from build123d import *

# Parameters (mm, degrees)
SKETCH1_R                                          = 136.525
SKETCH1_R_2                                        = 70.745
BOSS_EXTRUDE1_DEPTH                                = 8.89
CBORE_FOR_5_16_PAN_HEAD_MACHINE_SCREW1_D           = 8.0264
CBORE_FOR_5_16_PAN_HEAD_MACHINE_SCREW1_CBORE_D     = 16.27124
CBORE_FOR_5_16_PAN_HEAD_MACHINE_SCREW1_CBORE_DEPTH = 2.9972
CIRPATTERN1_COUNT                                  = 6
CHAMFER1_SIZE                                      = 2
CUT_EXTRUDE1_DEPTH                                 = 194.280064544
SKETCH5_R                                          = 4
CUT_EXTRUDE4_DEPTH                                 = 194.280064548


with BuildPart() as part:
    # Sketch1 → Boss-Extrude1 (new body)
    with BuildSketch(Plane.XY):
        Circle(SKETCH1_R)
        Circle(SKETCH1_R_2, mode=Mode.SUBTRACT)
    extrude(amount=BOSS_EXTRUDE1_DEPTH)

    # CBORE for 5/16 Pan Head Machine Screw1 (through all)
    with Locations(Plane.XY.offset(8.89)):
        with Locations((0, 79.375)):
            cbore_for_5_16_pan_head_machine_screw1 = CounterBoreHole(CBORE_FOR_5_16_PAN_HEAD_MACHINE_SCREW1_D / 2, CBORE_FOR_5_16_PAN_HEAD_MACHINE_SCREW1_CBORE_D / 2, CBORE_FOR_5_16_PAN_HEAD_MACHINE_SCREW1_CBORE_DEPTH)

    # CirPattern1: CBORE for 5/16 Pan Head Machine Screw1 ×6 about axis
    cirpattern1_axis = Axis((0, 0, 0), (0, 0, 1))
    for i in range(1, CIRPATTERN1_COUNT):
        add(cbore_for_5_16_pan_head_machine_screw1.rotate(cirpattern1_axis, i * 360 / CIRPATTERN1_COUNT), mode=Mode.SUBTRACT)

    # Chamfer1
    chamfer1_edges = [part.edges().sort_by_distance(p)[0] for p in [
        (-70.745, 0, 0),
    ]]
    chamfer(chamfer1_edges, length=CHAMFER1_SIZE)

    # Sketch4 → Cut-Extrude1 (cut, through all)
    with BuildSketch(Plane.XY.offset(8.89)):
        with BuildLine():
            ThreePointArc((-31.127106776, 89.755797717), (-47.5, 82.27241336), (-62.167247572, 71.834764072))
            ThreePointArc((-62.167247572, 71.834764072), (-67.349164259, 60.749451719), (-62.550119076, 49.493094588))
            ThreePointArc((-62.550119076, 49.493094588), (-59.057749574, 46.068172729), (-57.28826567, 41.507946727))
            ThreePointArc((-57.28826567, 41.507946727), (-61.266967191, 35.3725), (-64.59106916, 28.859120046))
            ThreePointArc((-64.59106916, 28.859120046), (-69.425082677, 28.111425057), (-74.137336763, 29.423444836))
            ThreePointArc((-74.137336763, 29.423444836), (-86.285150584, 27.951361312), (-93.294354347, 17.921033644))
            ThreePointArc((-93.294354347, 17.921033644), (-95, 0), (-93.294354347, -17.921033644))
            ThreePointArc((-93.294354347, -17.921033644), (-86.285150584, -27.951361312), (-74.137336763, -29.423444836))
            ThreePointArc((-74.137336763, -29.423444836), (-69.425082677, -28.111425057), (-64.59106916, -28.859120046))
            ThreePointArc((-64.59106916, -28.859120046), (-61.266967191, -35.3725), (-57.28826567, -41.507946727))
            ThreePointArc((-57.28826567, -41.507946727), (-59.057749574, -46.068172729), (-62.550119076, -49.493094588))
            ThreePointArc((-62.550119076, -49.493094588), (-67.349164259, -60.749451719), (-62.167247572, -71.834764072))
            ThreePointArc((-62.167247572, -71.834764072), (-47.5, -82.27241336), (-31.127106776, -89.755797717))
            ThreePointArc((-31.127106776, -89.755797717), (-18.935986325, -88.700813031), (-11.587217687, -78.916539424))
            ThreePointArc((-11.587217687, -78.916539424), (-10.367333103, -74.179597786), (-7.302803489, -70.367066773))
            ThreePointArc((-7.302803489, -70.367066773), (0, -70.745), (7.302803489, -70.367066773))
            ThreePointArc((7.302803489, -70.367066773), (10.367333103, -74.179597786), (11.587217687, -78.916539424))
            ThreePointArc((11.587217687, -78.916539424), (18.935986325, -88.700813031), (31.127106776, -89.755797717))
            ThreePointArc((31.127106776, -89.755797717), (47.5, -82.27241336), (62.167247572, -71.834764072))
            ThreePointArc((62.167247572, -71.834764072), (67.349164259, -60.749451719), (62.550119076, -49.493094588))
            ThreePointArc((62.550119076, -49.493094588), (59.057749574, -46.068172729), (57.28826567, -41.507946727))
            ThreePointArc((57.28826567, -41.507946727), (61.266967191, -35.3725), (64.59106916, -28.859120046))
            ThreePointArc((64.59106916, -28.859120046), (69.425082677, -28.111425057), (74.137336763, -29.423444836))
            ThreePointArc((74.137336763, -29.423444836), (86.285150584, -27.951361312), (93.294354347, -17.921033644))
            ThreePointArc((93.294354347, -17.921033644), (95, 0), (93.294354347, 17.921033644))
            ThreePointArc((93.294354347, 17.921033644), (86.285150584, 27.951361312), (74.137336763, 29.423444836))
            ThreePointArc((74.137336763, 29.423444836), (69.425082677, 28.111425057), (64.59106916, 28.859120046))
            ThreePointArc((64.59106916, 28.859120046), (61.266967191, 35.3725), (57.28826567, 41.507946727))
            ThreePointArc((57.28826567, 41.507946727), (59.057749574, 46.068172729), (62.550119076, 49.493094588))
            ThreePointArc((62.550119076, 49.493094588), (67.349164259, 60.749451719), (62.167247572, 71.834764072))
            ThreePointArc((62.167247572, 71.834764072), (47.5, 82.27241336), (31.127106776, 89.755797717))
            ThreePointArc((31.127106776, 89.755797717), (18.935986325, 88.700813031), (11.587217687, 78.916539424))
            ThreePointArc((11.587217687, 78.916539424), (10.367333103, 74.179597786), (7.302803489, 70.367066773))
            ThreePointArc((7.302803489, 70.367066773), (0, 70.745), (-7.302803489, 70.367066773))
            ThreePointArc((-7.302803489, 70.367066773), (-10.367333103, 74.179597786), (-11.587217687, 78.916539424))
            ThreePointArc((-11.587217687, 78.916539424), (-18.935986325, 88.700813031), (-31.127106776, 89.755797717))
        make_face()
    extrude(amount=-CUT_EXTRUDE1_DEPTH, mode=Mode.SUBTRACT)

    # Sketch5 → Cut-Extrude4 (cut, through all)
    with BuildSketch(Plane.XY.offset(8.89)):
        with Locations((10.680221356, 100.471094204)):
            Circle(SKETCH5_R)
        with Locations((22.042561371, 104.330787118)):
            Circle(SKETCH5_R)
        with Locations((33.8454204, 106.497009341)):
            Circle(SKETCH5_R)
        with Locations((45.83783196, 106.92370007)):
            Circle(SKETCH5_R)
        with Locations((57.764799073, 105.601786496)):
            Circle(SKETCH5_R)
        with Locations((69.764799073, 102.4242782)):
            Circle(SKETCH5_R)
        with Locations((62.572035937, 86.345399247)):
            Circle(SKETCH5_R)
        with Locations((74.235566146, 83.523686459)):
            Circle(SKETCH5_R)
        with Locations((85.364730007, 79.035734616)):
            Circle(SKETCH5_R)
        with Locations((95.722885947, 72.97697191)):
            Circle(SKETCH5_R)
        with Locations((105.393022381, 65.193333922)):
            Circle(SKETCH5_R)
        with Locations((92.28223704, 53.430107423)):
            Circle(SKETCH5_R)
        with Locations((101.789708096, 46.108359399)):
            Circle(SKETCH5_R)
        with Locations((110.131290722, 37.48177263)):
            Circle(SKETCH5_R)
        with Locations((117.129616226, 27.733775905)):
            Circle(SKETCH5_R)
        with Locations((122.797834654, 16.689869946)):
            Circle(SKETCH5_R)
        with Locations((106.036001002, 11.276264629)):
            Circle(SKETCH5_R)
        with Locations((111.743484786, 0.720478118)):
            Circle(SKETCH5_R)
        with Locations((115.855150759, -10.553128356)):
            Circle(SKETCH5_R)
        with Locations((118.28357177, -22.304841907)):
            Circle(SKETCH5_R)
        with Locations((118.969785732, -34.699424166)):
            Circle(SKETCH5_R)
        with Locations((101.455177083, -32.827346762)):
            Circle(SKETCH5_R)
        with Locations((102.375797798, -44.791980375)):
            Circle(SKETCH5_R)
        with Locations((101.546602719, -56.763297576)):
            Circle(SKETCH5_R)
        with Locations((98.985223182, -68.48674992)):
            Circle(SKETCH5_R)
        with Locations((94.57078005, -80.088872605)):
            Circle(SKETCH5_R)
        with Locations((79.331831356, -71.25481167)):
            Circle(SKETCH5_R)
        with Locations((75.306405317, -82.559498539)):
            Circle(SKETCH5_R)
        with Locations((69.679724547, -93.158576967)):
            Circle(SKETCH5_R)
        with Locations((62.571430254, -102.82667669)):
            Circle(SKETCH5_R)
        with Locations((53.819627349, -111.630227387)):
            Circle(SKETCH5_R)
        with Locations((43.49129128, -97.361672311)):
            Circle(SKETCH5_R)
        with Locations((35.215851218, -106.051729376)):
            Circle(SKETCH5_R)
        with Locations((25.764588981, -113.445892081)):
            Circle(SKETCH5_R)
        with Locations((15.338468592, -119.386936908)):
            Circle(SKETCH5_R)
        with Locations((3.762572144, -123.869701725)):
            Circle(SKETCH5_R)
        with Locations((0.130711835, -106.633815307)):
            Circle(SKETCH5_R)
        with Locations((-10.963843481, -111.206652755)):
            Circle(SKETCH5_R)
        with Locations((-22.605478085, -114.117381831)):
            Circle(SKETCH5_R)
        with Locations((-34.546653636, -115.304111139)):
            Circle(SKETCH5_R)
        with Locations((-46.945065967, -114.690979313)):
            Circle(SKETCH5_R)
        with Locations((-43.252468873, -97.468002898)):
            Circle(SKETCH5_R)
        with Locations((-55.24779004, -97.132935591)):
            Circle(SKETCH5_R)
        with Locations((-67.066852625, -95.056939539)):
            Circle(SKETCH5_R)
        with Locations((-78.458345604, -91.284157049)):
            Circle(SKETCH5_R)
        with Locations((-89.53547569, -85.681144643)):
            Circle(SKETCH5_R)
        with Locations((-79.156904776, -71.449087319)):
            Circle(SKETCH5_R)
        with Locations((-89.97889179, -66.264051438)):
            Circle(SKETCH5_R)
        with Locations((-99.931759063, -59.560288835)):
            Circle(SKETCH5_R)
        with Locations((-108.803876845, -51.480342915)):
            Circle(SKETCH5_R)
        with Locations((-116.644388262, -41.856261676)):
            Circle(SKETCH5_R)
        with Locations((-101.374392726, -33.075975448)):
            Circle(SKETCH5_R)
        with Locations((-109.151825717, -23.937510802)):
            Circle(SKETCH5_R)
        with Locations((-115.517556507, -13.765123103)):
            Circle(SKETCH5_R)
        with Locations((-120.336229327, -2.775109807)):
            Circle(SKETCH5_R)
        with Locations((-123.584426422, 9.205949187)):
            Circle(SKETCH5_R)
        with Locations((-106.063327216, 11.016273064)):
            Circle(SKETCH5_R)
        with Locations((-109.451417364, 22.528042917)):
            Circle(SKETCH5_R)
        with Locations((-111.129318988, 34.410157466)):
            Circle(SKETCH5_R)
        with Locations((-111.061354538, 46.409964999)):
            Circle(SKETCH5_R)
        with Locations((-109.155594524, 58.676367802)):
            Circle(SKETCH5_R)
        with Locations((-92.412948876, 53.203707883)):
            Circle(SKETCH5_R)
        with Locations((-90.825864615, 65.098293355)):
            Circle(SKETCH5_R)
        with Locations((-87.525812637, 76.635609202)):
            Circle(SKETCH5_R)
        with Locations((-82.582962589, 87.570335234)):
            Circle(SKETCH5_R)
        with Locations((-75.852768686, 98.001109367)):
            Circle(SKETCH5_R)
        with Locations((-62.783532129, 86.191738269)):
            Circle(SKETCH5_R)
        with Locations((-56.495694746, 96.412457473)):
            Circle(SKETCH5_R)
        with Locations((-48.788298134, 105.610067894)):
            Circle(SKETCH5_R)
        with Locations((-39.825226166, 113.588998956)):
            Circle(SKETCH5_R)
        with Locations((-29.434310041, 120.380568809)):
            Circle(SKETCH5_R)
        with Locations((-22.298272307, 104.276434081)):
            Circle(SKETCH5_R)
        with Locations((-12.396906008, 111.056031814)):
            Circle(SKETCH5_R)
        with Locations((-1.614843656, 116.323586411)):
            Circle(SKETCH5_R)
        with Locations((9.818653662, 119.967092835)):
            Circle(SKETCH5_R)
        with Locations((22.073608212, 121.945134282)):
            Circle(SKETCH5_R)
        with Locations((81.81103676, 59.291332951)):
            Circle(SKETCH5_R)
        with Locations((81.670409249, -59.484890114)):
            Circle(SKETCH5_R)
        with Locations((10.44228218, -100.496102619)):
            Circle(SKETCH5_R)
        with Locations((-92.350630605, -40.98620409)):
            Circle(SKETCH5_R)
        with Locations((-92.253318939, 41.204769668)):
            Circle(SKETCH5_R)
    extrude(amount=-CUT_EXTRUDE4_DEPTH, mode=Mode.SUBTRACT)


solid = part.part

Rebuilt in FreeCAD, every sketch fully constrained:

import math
import FreeCAD as App
import Part
import Sketcher

V = App.Vector


def edges_at(feature, points):
    """Names of the edges that pass closest to the given points."""
    edges = feature.Shape.Edges
    near = lambda p: min(range(len(edges)), key=lambda i: edges[i].distToShape(Part.Vertex(*p))[0])
    return sorted({f"Edge{near(p) + 1}" for p in points})

doc = App.newDocument("Part")
body = doc.addObject("PartDesign::Body", "Body")

# Sketch on XY plane
sketch1 = doc.addObject("Sketcher::SketchObject", "Sketch")
body.addObject(sketch1)
sketch1.AttachmentSupport = (doc.XY_Plane, [""])
sketch1.MapMode = "FlatFace"
sketch1.addGeometry(Part.Circle(V(0, 0, 0), V(0, 0, 1), 137), False)
sketch1.addGeometry(Part.Circle(V(0, 0, 0), V(0, 0, 1), 71), False)
sketch1.addConstraint(Sketcher.Constraint("Coincident", 0, 3, -1, 1))
sketch1.addConstraint(Sketcher.Constraint("Coincident", 1, 3, -1, 1))
sketch1.addConstraint(Sketcher.Constraint("Diameter", 0, 273.05))
sketch1.addConstraint(Sketcher.Constraint("Diameter", 1, 141.49))
pad1 = doc.addObject("PartDesign::Pad", "Pad")
body.addObject(pad1)
pad1.Profile = sketch1
pad1.Length = 8.89

# Sketch on XY plane
sketch2 = doc.addObject("Sketcher::SketchObject", "Sketch001")
body.addObject(sketch2)
sketch2.AttachmentSupport = (doc.XY_Plane, [""])
sketch2.MapMode = "FlatFace"
sketch2.AttachmentOffset = App.Placement(V(0, 0, 8.89), App.Rotation())
sketch2.addGeometry(Part.Circle(V(0, 79.4, 0), V(0, 0, 1), 4), False)
sketch2.addConstraint(Sketcher.Constraint("PointOnObject", 0, 3, -2))
sketch2.addConstraint(Sketcher.Constraint("Diameter", 0, 8.0264))
sketch2.addConstraint(Sketcher.Constraint("DistanceY", -1, 1, 0, 3, 79.375))
doc.recompute()
hole = doc.addObject("PartDesign::Hole", "Hole")
body.addObject(hole)
hole.Profile = sketch2
hole.ThreadType = "None"
hole.Diameter = 8.0264
hole.DepthType = "ThroughAll"
hole.HoleCutType = "Counterbore"
hole.HoleCutDiameter = 16.27124
hole.HoleCutDepth = 2.9972
doc.recompute()

polarpattern = doc.addObject("PartDesign::PolarPattern", "PolarPattern")
body.addObject(polarpattern)
polarpattern.Originals = [hole]
polarpattern.Axis = (doc.Z_Axis, [""])
polarpattern.Angle = 360
polarpattern.Occurrences = 6
body.Tip = polarpattern
doc.recompute()

chamfer = doc.addObject("PartDesign::Chamfer", "Chamfer")
body.addObject(chamfer)
chamfer.Base = (polarpattern, edges_at(polarpattern, [(-70.745, 0, 0)]))
chamfer.Size = 2

# Sketch on XY plane
sketch3 = doc.addObject("Sketcher::SketchObject", "Sketch002")
body.addObject(sketch3)
sketch3.AttachmentSupport = (doc.XY_Plane, [""])
sketch3.MapMode = "FlatFace"
sketch3.AttachmentOffset = App.Placement(V(0, 0, 8.89), App.Rotation())
sketch3.addGeometry(Part.ArcOfCircle(Part.Circle(V(0, 0, 0), V(0, 0, 1), 95), math.radians(109), math.radians(131)), False)
sketch3.addGeometry(Part.ArcOfCircle(Part.Circle(V(-52, 60, 0), V(0, 0, 1), 15), math.radians(131), math.radians(227)), False)
sketch3.addGeometry(Part.ArcOfCircle(Part.Circle(V(-69, 40, 0), V(0, 0, 1), 12), math.radians(9), math.radians(58)), False)
sketch3.addGeometry(Part.ArcOfCircle(Part.Circle(V(0, 0, 0), V(0, 0, 1), 71), math.radians(144.07), math.radians(155.93)), False)
sketch3.addGeometry(Part.ArcOfCircle(Part.Circle(V(-69, 40, 0), V(0, 0, 1), 12), math.radians(-118), math.radians(-69)), False)
sketch3.addGeometry(Part.ArcOfCircle(Part.Circle(V(-79, 15, 0), V(0, 0, 1), 15), math.radians(73), math.radians(169)), False)
sketch3.addGeometry(Part.ArcOfCircle(Part.Circle(V(0, 0, 0), V(0, 0, 1), 95), math.radians(169), math.radians(191)), False)
sketch3.addGeometry(Part.ArcOfCircle(Part.Circle(V(-79, -15, 0), V(0, 0, 1), 15), math.radians(-169), math.radians(-73)), False)
sketch3.addGeometry(Part.ArcOfCircle(Part.Circle(V(-69, -40, 0), V(0, 0, 1), 12), math.radians(69), math.radians(118)), False)
sketch3.addGeometry(Part.ArcOfCircle(Part.Circle(V(0, 0, 0), V(0, 0, 1), 71), math.radians(-155.93), math.radians(-144.07)), False)
sketch3.addGeometry(Part.ArcOfCircle(Part.Circle(V(-69, -40, 0), V(0, 0, 1), 12), math.radians(-58), math.radians(-9)), False)
sketch3.addGeometry(Part.ArcOfCircle(Part.Circle(V(-52, -60, 0), V(0, 0, 1), 15), math.radians(133), math.radians(229)), False)
sketch3.addGeometry(Part.ArcOfCircle(Part.Circle(V(0, 0, 0), V(0, 0, 1), 95), math.radians(-131), math.radians(-109)), False)
sketch3.addGeometry(Part.ArcOfCircle(Part.Circle(V(-26, -76, 0), V(0, 0, 1), 15), math.radians(-109), math.radians(-13)), False)
sketch3.addGeometry(Part.ArcOfCircle(Part.Circle(V(0, -79, 0), V(0, 0, 1), 12), math.radians(129), math.radians(178)), False)
sketch3.addGeometry(Part.ArcOfCircle(Part.Circle(V(0, 0, 0), V(0, 0, 1), 71), math.radians(-95.93), math.radians(-84.07)), False)
sketch3.addGeometry(Part.ArcOfCircle(Part.Circle(V(0, -79, 0), V(0, 0, 1), 12), math.radians(2), math.radians(51)), False)
sketch3.addGeometry(Part.ArcOfCircle(Part.Circle(V(26, -76, 0), V(0, 0, 1), 15), math.radians(-167), math.radians(-71)), False)
sketch3.addGeometry(Part.ArcOfCircle(Part.Circle(V(0, 0, 0), V(0, 0, 1), 95), math.radians(-71), math.radians(-49)), False)
sketch3.addGeometry(Part.ArcOfCircle(Part.Circle(V(52, -60, 0), V(0, 0, 1), 15), math.radians(-49), math.radians(47)), False)
sketch3.addGeometry(Part.ArcOfCircle(Part.Circle(V(69, -40, 0), V(0, 0, 1), 12), math.radians(-171), math.radians(-122)), False)
sketch3.addGeometry(Part.ArcOfCircle(Part.Circle(V(0, 0, 0), V(0, 0, 1), 71), math.radians(-35.93), math.radians(-24.07)), False)
sketch3.addGeometry(Part.ArcOfCircle(Part.Circle(V(69, -40, 0), V(0, 0, 1), 12), math.radians(62), math.radians(111)), False)
sketch3.addGeometry(Part.ArcOfCircle(Part.Circle(V(79, -15, 0), V(0, 0, 1), 15), math.radians(-107), math.radians(-11)), False)
sketch3.addGeometry(Part.ArcOfCircle(Part.Circle(V(0, 0, 0), V(0, 0, 1), 95), math.radians(-11), math.radians(11)), False)
sketch3.addGeometry(Part.ArcOfCircle(Part.Circle(V(79, 15, 0), V(0, 0, 1), 15), math.radians(11), math.radians(107)), False)
sketch3.addGeometry(Part.ArcOfCircle(Part.Circle(V(69, 40, 0), V(0, 0, 1), 12), math.radians(-111), math.radians(-62)), False)
sketch3.addGeometry(Part.ArcOfCircle(Part.Circle(V(0, 0, 0), V(0, 0, 1), 71), math.radians(24.07), math.radians(35.93)), False)
sketch3.addGeometry(Part.ArcOfCircle(Part.Circle(V(69, 40, 0), V(0, 0, 1), 12), math.radians(122), math.radians(171)), False)
sketch3.addGeometry(Part.ArcOfCircle(Part.Circle(V(52, 60, 0), V(0, 0, 1), 15), math.radians(-47), math.radians(49)), False)
sketch3.addGeometry(Part.ArcOfCircle(Part.Circle(V(0, 0, 0), V(0, 0, 1), 95), math.radians(49), math.radians(71)), False)
sketch3.addGeometry(Part.ArcOfCircle(Part.Circle(V(26, 76, 0), V(0, 0, 1), 15), math.radians(71), math.radians(167)), False)
sketch3.addGeometry(Part.ArcOfCircle(Part.Circle(V(0, 79, 0), V(0, 0, 1), 12), math.radians(-51), math.radians(-2)), False)
sketch3.addGeometry(Part.ArcOfCircle(Part.Circle(V(0, 0, 0), V(0, 0, 1), 71), math.radians(84.07), math.radians(95.93)), False)
sketch3.addGeometry(Part.ArcOfCircle(Part.Circle(V(0, 79, 0), V(0, 0, 1), 12), math.radians(-178), math.radians(-129)), False)
sketch3.addGeometry(Part.ArcOfCircle(Part.Circle(V(-26, 76, 0), V(0, 0, 1), 15), math.radians(13), math.radians(109)), False)
sketch3.addConstraint(Sketcher.Constraint("Tangent", 0, 2, 1, 1))
sketch3.addConstraint(Sketcher.Constraint("Coincident", 1, 2, 2, 2))
sketch3.addConstraint(Sketcher.Constraint("Coincident", 2, 1, 3, 1))
sketch3.addConstraint(Sketcher.Constraint("Coincident", 3, 2, 4, 2))
sketch3.addConstraint(Sketcher.Constraint("Coincident", 4, 1, 5, 1))
sketch3.addConstraint(Sketcher.Constraint("Tangent", 5, 2, 6, 1))
sketch3.addConstraint(Sketcher.Constraint("Tangent", 6, 2, 7, 1))
sketch3.addConstraint(Sketcher.Constraint("Coincident", 7, 2, 8, 2))
sketch3.addConstraint(Sketcher.Constraint("Coincident", 8, 1, 9, 1))
sketch3.addConstraint(Sketcher.Constraint("Coincident", 9, 2, 10, 2))
sketch3.addConstraint(Sketcher.Constraint("Coincident", 10, 1, 11, 1))
sketch3.addConstraint(Sketcher.Constraint("Tangent", 11, 2, 12, 1))
sketch3.addConstraint(Sketcher.Constraint("Tangent", 12, 2, 13, 1))
sketch3.addConstraint(Sketcher.Constraint("Coincident", 13, 2, 14, 2))
sketch3.addConstraint(Sketcher.Constraint("Coincident", 14, 1, 15, 1))
sketch3.addConstraint(Sketcher.Constraint("Coincident", 15, 2, 16, 2))
sketch3.addConstraint(Sketcher.Constraint("Coincident", 16, 1, 17, 1))
sketch3.addConstraint(Sketcher.Constraint("Tangent", 17, 2, 18, 1))
sketch3.addConstraint(Sketcher.Constraint("Tangent", 18, 2, 19, 1))
sketch3.addConstraint(Sketcher.Constraint("Coincident", 19, 2, 20, 2))
sketch3.addConstraint(Sketcher.Constraint("Coincident", 20, 1, 21, 1))
sketch3.addConstraint(Sketcher.Constraint("Coincident", 21, 2, 22, 2))
sketch3.addConstraint(Sketcher.Constraint("Coincident", 22, 1, 23, 1))
sketch3.addConstraint(Sketcher.Constraint("Tangent", 23, 2, 24, 1))
sketch3.addConstraint(Sketcher.Constraint("Tangent", 24, 2, 25, 1))
sketch3.addConstraint(Sketcher.Constraint("Coincident", 25, 2, 26, 2))
sketch3.addConstraint(Sketcher.Constraint("Coincident", 26, 1, 27, 1))
sketch3.addConstraint(Sketcher.Constraint("Coincident", 27, 2, 28, 2))
sketch3.addConstraint(Sketcher.Constraint("Coincident", 28, 1, 29, 1))
sketch3.addConstraint(Sketcher.Constraint("Tangent", 29, 2, 30, 1))
sketch3.addConstraint(Sketcher.Constraint("Tangent", 30, 2, 31, 1))
sketch3.addConstraint(Sketcher.Constraint("Coincident", 31, 2, 32, 2))
sketch3.addConstraint(Sketcher.Constraint("Coincident", 32, 1, 33, 1))
sketch3.addConstraint(Sketcher.Constraint("Coincident", 33, 2, 34, 2))
sketch3.addConstraint(Sketcher.Constraint("Coincident", 34, 1, 35, 1))
sketch3.addConstraint(Sketcher.Constraint("Tangent", 35, 2, 0, 1))
sketch3.addConstraint(Sketcher.Constraint("Coincident", 0, 3, -1, 1))
sketch3.addConstraint(Sketcher.Constraint("Coincident", 3, 3, -1, 1))
sketch3.addConstraint(Sketcher.Constraint("Coincident", 6, 3, -1, 1))
sketch3.addConstraint(Sketcher.Constraint("Coincident", 9, 3, -1, 1))
sketch3.addConstraint(Sketcher.Constraint("Coincident", 12, 3, -1, 1))
sketch3.addConstraint(Sketcher.Constraint("Coincident", 15, 3, -1, 1))
sketch3.addConstraint(Sketcher.Constraint("Coincident", 18, 3, -1, 1))
sketch3.addConstraint(Sketcher.Constraint("Coincident", 21, 3, -1, 1))
sketch3.addConstraint(Sketcher.Constraint("Coincident", 24, 3, -1, 1))
sketch3.addConstraint(Sketcher.Constraint("Coincident", 27, 3, -1, 1))
sketch3.addConstraint(Sketcher.Constraint("Coincident", 30, 3, -1, 1))
sketch3.addConstraint(Sketcher.Constraint("Coincident", 33, 3, -1, 1))
sketch3.addConstraint(Sketcher.Constraint("Coincident", 4, 3, 2, 3))
sketch3.addConstraint(Sketcher.Constraint("Coincident", 10, 3, 8, 3))
sketch3.addConstraint(Sketcher.Constraint("Coincident", 16, 3, 14, 3))
sketch3.addConstraint(Sketcher.Constraint("Coincident", 22, 3, 20, 3))
sketch3.addConstraint(Sketcher.Constraint("Coincident", 28, 3, 26, 3))
sketch3.addConstraint(Sketcher.Constraint("Coincident", 34, 3, 32, 3))
sketch3.addConstraint(Sketcher.Constraint("Equal", 2, 4))
sketch3.addConstraint(Sketcher.Constraint("Equal", 1, 5))
sketch3.addConstraint(Sketcher.Constraint("Equal", 0, 6))
sketch3.addConstraint(Sketcher.Constraint("Equal", 5, 7))
sketch3.addConstraint(Sketcher.Constraint("Equal", 4, 8))
sketch3.addConstraint(Sketcher.Constraint("Equal", 3, 9))
sketch3.addConstraint(Sketcher.Constraint("Equal", 8, 10))
sketch3.addConstraint(Sketcher.Constraint("Equal", 7, 11))
sketch3.addConstraint(Sketcher.Constraint("Equal", 6, 12))
sketch3.addConstraint(Sketcher.Constraint("Equal", 11, 13))
sketch3.addConstraint(Sketcher.Constraint("Equal", 10, 14))
sketch3.addConstraint(Sketcher.Constraint("Equal", 9, 15))
sketch3.addConstraint(Sketcher.Constraint("Equal", 14, 16))
sketch3.addConstraint(Sketcher.Constraint("Equal", 13, 17))
sketch3.addConstraint(Sketcher.Constraint("Equal", 12, 18))
sketch3.addConstraint(Sketcher.Constraint("Equal", 17, 19))
sketch3.addConstraint(Sketcher.Constraint("Equal", 16, 20))
sketch3.addConstraint(Sketcher.Constraint("Equal", 15, 21))
sketch3.addConstraint(Sketcher.Constraint("Equal", 20, 22))
sketch3.addConstraint(Sketcher.Constraint("Equal", 19, 23))
sketch3.addConstraint(Sketcher.Constraint("Equal", 18, 24))
sketch3.addConstraint(Sketcher.Constraint("Equal", 23, 25))
sketch3.addConstraint(Sketcher.Constraint("Equal", 22, 26))
sketch3.addConstraint(Sketcher.Constraint("Equal", 21, 27))
sketch3.addConstraint(Sketcher.Constraint("Equal", 26, 28))
sketch3.addConstraint(Sketcher.Constraint("Equal", 25, 29))
sketch3.addConstraint(Sketcher.Constraint("Equal", 24, 30))
sketch3.addConstraint(Sketcher.Constraint("Equal", 29, 31))
sketch3.addConstraint(Sketcher.Constraint("Equal", 28, 32))
sketch3.addConstraint(Sketcher.Constraint("Equal", 27, 33))
sketch3.addConstraint(Sketcher.Constraint("Equal", 32, 34))
sketch3.addConstraint(Sketcher.Constraint("Equal", 31, 35))
sketch3.addConstraint(Sketcher.Constraint("Symmetric", 2, 3, 20, 3, -1, 1))
sketch3.addConstraint(Sketcher.Constraint("Symmetric", 8, 3, 26, 3, -1, 1))
sketch3.addConstraint(Sketcher.Constraint("Symmetric", 14, 3, 32, 3, -1, 1))
sketch3.addConstraint(Sketcher.Constraint("Symmetric", 8, 3, 20, 3, -2))
sketch3.addConstraint(Sketcher.Constraint("Symmetric", 13, 2, 16, 1, -2))
sketch3.addConstraint(Sketcher.Constraint("Horizontal", 11, 3, 19, 3))
sketch3.addConstraint(Sketcher.Constraint("Horizontal", 7, 3, 23, 3))
sketch3.addConstraint(Sketcher.Constraint("Horizontal", 5, 3, 25, 3))
sketch3.addConstraint(Sketcher.Constraint("Horizontal", 1, 3, 29, 3))
sketch3.addConstraint(Sketcher.Constraint("Horizontal", 31, 3, 35, 3))
sketch3.addConstraint(Sketcher.Constraint("Vertical", 5, 3, 7, 3))
sketch3.addConstraint(Sketcher.Constraint("Vertical", 1, 3, 11, 3))
sketch3.addConstraint(Sketcher.Constraint("Vertical", 17, 3, 31, 3))
sketch3.addConstraint(Sketcher.Constraint("Radius", 0, 95.0))
sketch3.addConstraint(Sketcher.Constraint("Radius", 1, 15.0))
sketch3.addConstraint(Sketcher.Constraint("Radius", 3, 70.745))
sketch3.addConstraint(Sketcher.Constraint("DistanceY", 14, 3, -1, 1, 79.375))
sketch3.addConstraint(Sketcher.Constraint("Radius", 2, 11.596284))
sketch3.addConstraint(Sketcher.Constraint("DistanceY", -1, 1, 2, 3, 39.6875))
sketch3.addConstraint(Sketcher.Constraint("DistanceX", 13, 3, -1, 1, 26.2123))
sketch3.addConstraint(Sketcher.Constraint("DistanceX", 1, 2, -1, 1, 62.550119))
sketch3.addConstraint(Sketcher.Constraint("DistanceX", 3, 2, -1, 1, 64.591069))
sketch3.addConstraint(Sketcher.Constraint("DistanceX", 5, 3, -1, 1, 78.563667))
pocket1 = doc.addObject("PartDesign::Pocket", "Pocket")
body.addObject(pocket1)
pocket1.Profile = sketch3
pocket1.Type = "ThroughAll"

# Sketch on XY plane
sketch4 = doc.addObject("Sketcher::SketchObject", "Sketch003")
body.addObject(sketch4)
sketch4.AttachmentSupport = (doc.XY_Plane, [""])
sketch4.MapMode = "FlatFace"
sketch4.AttachmentOffset = App.Placement(V(0, 0, 8.89), App.Rotation())
sketch4.addGeometry(Part.Circle(V(10.7, 100.5, 0), V(0, 0, 1), 4), False)
sketch4.addGeometry(Part.Circle(V(22, 104.3, 0), V(0, 0, 1), 4), False)
sketch4.addGeometry(Part.Circle(V(33.8, 106.5, 0), V(0, 0, 1), 4), False)
sketch4.addGeometry(Part.Circle(V(45.8, 106.9, 0), V(0, 0, 1), 4), False)
sketch4.addGeometry(Part.Circle(V(57.8, 105.6, 0), V(0, 0, 1), 4), False)
sketch4.addGeometry(Part.Circle(V(69.8, 102.4, 0), V(0, 0, 1), 4), False)
sketch4.addGeometry(Part.Circle(V(62.6, 86.3, 0), V(0, 0, 1), 4), False)
sketch4.addGeometry(Part.Circle(V(74.2, 83.5, 0), V(0, 0, 1), 4), False)
sketch4.addGeometry(Part.Circle(V(85.4, 79, 0), V(0, 0, 1), 4), False)
sketch4.addGeometry(Part.Circle(V(95.7, 73, 0), V(0, 0, 1), 4), False)
sketch4.addGeometry(Part.Circle(V(105.4, 65.2, 0), V(0, 0, 1), 4), False)
sketch4.addGeometry(Part.Circle(V(92.3, 53.4, 0), V(0, 0, 1), 4), False)
sketch4.addGeometry(Part.Circle(V(101.8, 46.1, 0), V(0, 0, 1), 4), False)
sketch4.addGeometry(Part.Circle(V(110.1, 37.5, 0), V(0, 0, 1), 4), False)
sketch4.addGeometry(Part.Circle(V(117.1, 27.7, 0), V(0, 0, 1), 4), False)
sketch4.addGeometry(Part.Circle(V(122.8, 16.7, 0), V(0, 0, 1), 4), False)
sketch4.addGeometry(Part.Circle(V(106, 11.3, 0), V(0, 0, 1), 4), False)
sketch4.addGeometry(Part.Circle(V(111.7, 0.7, 0), V(0, 0, 1), 4), False)
sketch4.addGeometry(Part.Circle(V(115.9, -10.6, 0), V(0, 0, 1), 4), False)
sketch4.addGeometry(Part.Circle(V(118.3, -22.3, 0), V(0, 0, 1), 4), False)
sketch4.addGeometry(Part.Circle(V(119, -34.7, 0), V(0, 0, 1), 4), False)
sketch4.addGeometry(Part.Circle(V(101.5, -32.8, 0), V(0, 0, 1), 4), False)
sketch4.addGeometry(Part.Circle(V(102.4, -44.8, 0), V(0, 0, 1), 4), False)
sketch4.addGeometry(Part.Circle(V(101.5, -56.8, 0), V(0, 0, 1), 4), False)
sketch4.addGeometry(Part.Circle(V(99, -68.5, 0), V(0, 0, 1), 4), False)
sketch4.addGeometry(Part.Circle(V(94.6, -80.1, 0), V(0, 0, 1), 4), False)
sketch4.addGeometry(Part.Circle(V(79.3, -71.3, 0), V(0, 0, 1), 4), False)
sketch4.addGeometry(Part.Circle(V(75.3, -82.6, 0), V(0, 0, 1), 4), False)
sketch4.addGeometry(Part.Circle(V(69.7, -93.2, 0), V(0, 0, 1), 4), False)
sketch4.addGeometry(Part.Circle(V(62.6, -102.8, 0), V(0, 0, 1), 4), False)
sketch4.addGeometry(Part.Circle(V(53.8, -111.6, 0), V(0, 0, 1), 4), False)
sketch4.addGeometry(Part.Circle(V(43.5, -97.4, 0), V(0, 0, 1), 4), False)
sketch4.addGeometry(Part.Circle(V(35.2, -106.1, 0), V(0, 0, 1), 4), False)
sketch4.addGeometry(Part.Circle(V(25.8, -113.4, 0), V(0, 0, 1), 4), False)
sketch4.addGeometry(Part.Circle(V(15.3, -119.4, 0), V(0, 0, 1), 4), False)
sketch4.addGeometry(Part.Circle(V(3.8, -123.9, 0), V(0, 0, 1), 4), False)
sketch4.addGeometry(Part.Circle(V(0.1, -106.6, 0), V(0, 0, 1), 4), False)
sketch4.addGeometry(Part.Circle(V(-11, -111.2, 0), V(0, 0, 1), 4), False)
sketch4.addGeometry(Part.Circle(V(-22.6, -114.1, 0), V(0, 0, 1), 4), False)
sketch4.addGeometry(Part.Circle(V(-34.5, -115.3, 0), V(0, 0, 1), 4), False)
sketch4.addGeometry(Part.Circle(V(-46.9, -114.7, 0), V(0, 0, 1), 4), False)
sketch4.addGeometry(Part.Circle(V(-43.3, -97.5, 0), V(0, 0, 1), 4), False)
sketch4.addGeometry(Part.Circle(V(-55.2, -97.1, 0), V(0, 0, 1), 4), False)
sketch4.addGeometry(Part.Circle(V(-67.1, -95.1, 0), V(0, 0, 1), 4), False)
sketch4.addGeometry(Part.Circle(V(-78.5, -91.3, 0), V(0, 0, 1), 4), False)
sketch4.addGeometry(Part.Circle(V(-89.5, -85.7, 0), V(0, 0, 1), 4), False)
sketch4.addGeometry(Part.Circle(V(-79.2, -71.4, 0), V(0, 0, 1), 4), False)
sketch4.addGeometry(Part.Circle(V(-90, -66.3, 0), V(0, 0, 1), 4), False)
sketch4.addGeometry(Part.Circle(V(-99.9, -59.6, 0), V(0, 0, 1), 4), False)
sketch4.addGeometry(Part.Circle(V(-108.8, -51.5, 0), V(0, 0, 1), 4), False)
sketch4.addGeometry(Part.Circle(V(-116.6, -41.9, 0), V(0, 0, 1), 4), False)
sketch4.addGeometry(Part.Circle(V(-101.4, -33.1, 0), V(0, 0, 1), 4), False)
sketch4.addGeometry(Part.Circle(V(-109.2, -23.9, 0), V(0, 0, 1), 4), False)
sketch4.addGeometry(Part.Circle(V(-115.5, -13.8, 0), V(0, 0, 1), 4), False)
sketch4.addGeometry(Part.Circle(V(-120.3, -2.8, 0), V(0, 0, 1), 4), False)
sketch4.addGeometry(Part.Circle(V(-123.6, 9.2, 0), V(0, 0, 1), 4), False)
sketch4.addGeometry(Part.Circle(V(-106.1, 11, 0), V(0, 0, 1), 4), False)
sketch4.addGeometry(Part.Circle(V(-109.5, 22.5, 0), V(0, 0, 1), 4), False)
sketch4.addGeometry(Part.Circle(V(-111.1, 34.4, 0), V(0, 0, 1), 4), False)
sketch4.addGeometry(Part.Circle(V(-111.1, 46.4, 0), V(0, 0, 1), 4), False)
sketch4.addGeometry(Part.Circle(V(-109.2, 58.7, 0), V(0, 0, 1), 4), False)
sketch4.addGeometry(Part.Circle(V(-92.4, 53.2, 0), V(0, 0, 1), 4), False)
sketch4.addGeometry(Part.Circle(V(-90.8, 65.1, 0), V(0, 0, 1), 4), False)
sketch4.addGeometry(Part.Circle(V(-87.5, 76.6, 0), V(0, 0, 1), 4), False)
sketch4.addGeometry(Part.Circle(V(-82.6, 87.6, 0), V(0, 0, 1), 4), False)
sketch4.addGeometry(Part.Circle(V(-75.9, 98, 0), V(0, 0, 1), 4), False)
sketch4.addGeometry(Part.Circle(V(-62.8, 86.2, 0), V(0, 0, 1), 4), False)
sketch4.addGeometry(Part.Circle(V(-56.5, 96.4, 0), V(0, 0, 1), 4), False)
sketch4.addGeometry(Part.Circle(V(-48.8, 105.6, 0), V(0, 0, 1), 4), False)
sketch4.addGeometry(Part.Circle(V(-39.8, 113.6, 0), V(0, 0, 1), 4), False)
sketch4.addGeometry(Part.Circle(V(-29.4, 120.4, 0), V(0, 0, 1), 4), False)
sketch4.addGeometry(Part.Circle(V(-22.3, 104.3, 0), V(0, 0, 1), 4), False)
sketch4.addGeometry(Part.Circle(V(-12.4, 111.1, 0), V(0, 0, 1), 4), False)
sketch4.addGeometry(Part.Circle(V(-1.6, 116.3, 0), V(0, 0, 1), 4), False)
sketch4.addGeometry(Part.Circle(V(9.8, 120, 0), V(0, 0, 1), 4), False)
sketch4.addGeometry(Part.Circle(V(22.1, 121.9, 0), V(0, 0, 1), 4), False)
sketch4.addGeometry(Part.Circle(V(81.8, 59.3, 0), V(0, 0, 1), 4), False)
sketch4.addGeometry(Part.Circle(V(81.7, -59.5, 0), V(0, 0, 1), 4), False)
sketch4.addGeometry(Part.Circle(V(10.4, -100.5, 0), V(0, 0, 1), 4), False)
sketch4.addGeometry(Part.Circle(V(-92.4, -41, 0), V(0, 0, 1), 4), False)
sketch4.addGeometry(Part.Circle(V(-92.3, 41.2, 0), V(0, 0, 1), 4), False)
sketch4.addConstraint(Sketcher.Constraint("Equal", 0, 1))
sketch4.addConstraint(Sketcher.Constraint("Equal", 1, 2))
sketch4.addConstraint(Sketcher.Constraint("Equal", 2, 3))
sketch4.addConstraint(Sketcher.Constraint("Equal", 3, 4))
sketch4.addConstraint(Sketcher.Constraint("Equal", 4, 5))
sketch4.addConstraint(Sketcher.Constraint("Equal", 5, 6))
sketch4.addConstraint(Sketcher.Constraint("Equal", 6, 7))
sketch4.addConstraint(Sketcher.Constraint("Equal", 7, 8))
sketch4.addConstraint(Sketcher.Constraint("Equal", 8, 9))
sketch4.addConstraint(Sketcher.Constraint("Equal", 9, 10))
sketch4.addConstraint(Sketcher.Constraint("Equal", 10, 11))
sketch4.addConstraint(Sketcher.Constraint("Equal", 11, 12))
sketch4.addConstraint(Sketcher.Constraint("Equal", 12, 13))
sketch4.addConstraint(Sketcher.Constraint("Equal", 13, 14))
sketch4.addConstraint(Sketcher.Constraint("Equal", 14, 15))
sketch4.addConstraint(Sketcher.Constraint("Equal", 15, 16))
sketch4.addConstraint(Sketcher.Constraint("Equal", 16, 17))
sketch4.addConstraint(Sketcher.Constraint("Equal", 17, 18))
sketch4.addConstraint(Sketcher.Constraint("Equal", 18, 19))
sketch4.addConstraint(Sketcher.Constraint("Equal", 19, 20))
sketch4.addConstraint(Sketcher.Constraint("Equal", 20, 21))
sketch4.addConstraint(Sketcher.Constraint("Equal", 21, 22))
sketch4.addConstraint(Sketcher.Constraint("Equal", 22, 23))
sketch4.addConstraint(Sketcher.Constraint("Equal", 23, 24))
sketch4.addConstraint(Sketcher.Constraint("Equal", 24, 25))
sketch4.addConstraint(Sketcher.Constraint("Equal", 25, 26))
sketch4.addConstraint(Sketcher.Constraint("Equal", 26, 27))
sketch4.addConstraint(Sketcher.Constraint("Equal", 27, 28))
sketch4.addConstraint(Sketcher.Constraint("Equal", 28, 29))
sketch4.addConstraint(Sketcher.Constraint("Equal", 29, 30))
sketch4.addConstraint(Sketcher.Constraint("Equal", 30, 31))
sketch4.addConstraint(Sketcher.Constraint("Equal", 31, 32))
sketch4.addConstraint(Sketcher.Constraint("Equal", 32, 33))
sketch4.addConstraint(Sketcher.Constraint("Equal", 33, 34))
sketch4.addConstraint(Sketcher.Constraint("Equal", 34, 35))
sketch4.addConstraint(Sketcher.Constraint("Equal", 35, 36))
sketch4.addConstraint(Sketcher.Constraint("Equal", 36, 37))
sketch4.addConstraint(Sketcher.Constraint("Equal", 37, 38))
sketch4.addConstraint(Sketcher.Constraint("Equal", 38, 39))
sketch4.addConstraint(Sketcher.Constraint("Equal", 39, 40))
sketch4.addConstraint(Sketcher.Constraint("Equal", 40, 41))
sketch4.addConstraint(Sketcher.Constraint("Equal", 41, 42))
sketch4.addConstraint(Sketcher.Constraint("Equal", 42, 43))
sketch4.addConstraint(Sketcher.Constraint("Equal", 43, 44))
sketch4.addConstraint(Sketcher.Constraint("Equal", 44, 45))
sketch4.addConstraint(Sketcher.Constraint("Equal", 45, 46))
sketch4.addConstraint(Sketcher.Constraint("Equal", 46, 47))
sketch4.addConstraint(Sketcher.Constraint("Equal", 47, 48))
sketch4.addConstraint(Sketcher.Constraint("Equal", 48, 49))
sketch4.addConstraint(Sketcher.Constraint("Equal", 49, 50))
sketch4.addConstraint(Sketcher.Constraint("Equal", 50, 51))
sketch4.addConstraint(Sketcher.Constraint("Equal", 51, 52))
sketch4.addConstraint(Sketcher.Constraint("Equal", 52, 53))
sketch4.addConstraint(Sketcher.Constraint("Equal", 53, 54))
sketch4.addConstraint(Sketcher.Constraint("Equal", 54, 55))
sketch4.addConstraint(Sketcher.Constraint("Equal", 55, 56))
sketch4.addConstraint(Sketcher.Constraint("Equal", 56, 57))
sketch4.addConstraint(Sketcher.Constraint("Equal", 57, 58))
sketch4.addConstraint(Sketcher.Constraint("Equal", 58, 59))
sketch4.addConstraint(Sketcher.Constraint("Equal", 59, 60))
sketch4.addConstraint(Sketcher.Constraint("Equal", 60, 61))
sketch4.addConstraint(Sketcher.Constraint("Equal", 61, 62))
sketch4.addConstraint(Sketcher.Constraint("Equal", 62, 63))
sketch4.addConstraint(Sketcher.Constraint("Equal", 63, 64))
sketch4.addConstraint(Sketcher.Constraint("Equal", 64, 65))
sketch4.addConstraint(Sketcher.Constraint("Equal", 65, 66))
sketch4.addConstraint(Sketcher.Constraint("Equal", 66, 67))
sketch4.addConstraint(Sketcher.Constraint("Equal", 67, 68))
sketch4.addConstraint(Sketcher.Constraint("Equal", 68, 69))
sketch4.addConstraint(Sketcher.Constraint("Equal", 69, 70))
sketch4.addConstraint(Sketcher.Constraint("Equal", 70, 71))
sketch4.addConstraint(Sketcher.Constraint("Equal", 71, 72))
sketch4.addConstraint(Sketcher.Constraint("Equal", 72, 73))
sketch4.addConstraint(Sketcher.Constraint("Equal", 73, 74))
sketch4.addConstraint(Sketcher.Constraint("Equal", 74, 75))
sketch4.addConstraint(Sketcher.Constraint("Equal", 75, 76))
sketch4.addConstraint(Sketcher.Constraint("Equal", 76, 77))
sketch4.addConstraint(Sketcher.Constraint("Equal", 77, 78))
sketch4.addConstraint(Sketcher.Constraint("Equal", 78, 79))
sketch4.addConstraint(Sketcher.Constraint("Equal", 79, 80))
sketch4.addConstraint(Sketcher.Constraint("Diameter", 0, 8.0))
sketch4.addConstraint(Sketcher.Constraint("DistanceX", -1, 1, 16, 3, 106.036001))
sketch4.addConstraint(Sketcher.Constraint("DistanceY", -1, 1, 69, 3, 113.588999))
sketch4.addConstraint(Sketcher.Constraint("DistanceY", -1, 1, 3, 3, 106.9237))
sketch4.addConstraint(Sketcher.Constraint("DistanceX", -1, 1, 4, 3, 57.764799))
sketch4.addConstraint(Sketcher.Constraint("DistanceX", -1, 1, 5, 3, 69.764799))
sketch4.addConstraint(Sketcher.Constraint("DistanceY", -1, 1, 6, 3, 86.345399))
sketch4.addConstraint(Sketcher.Constraint("DistanceY", 27, 3, -1, 1, 82.559499))
sketch4.addConstraint(Sketcher.Constraint("DistanceY", 35, 3, -1, 1, 123.869702))
sketch4.addConstraint(Sketcher.Constraint("DistanceX", 68, 3, -1, 1, 48.788298))
sketch4.addConstraint(Sketcher.Constraint("DistanceX", -1, 1, 0, 3, 10.680221))
sketch4.addConstraint(Sketcher.Constraint("DistanceX", -1, 1, 1, 3, 22.042561))
sketch4.addConstraint(Sketcher.Constraint("DistanceX", -1, 1, 2, 3, 33.84542))
sketch4.addConstraint(Sketcher.Constraint("DistanceY", -1, 1, 2, 3, 106.497009))
sketch4.addConstraint(Sketcher.Constraint("DistanceX", -1, 1, 3, 3, 45.837832))
sketch4.addConstraint(Sketcher.Constraint("DistanceY", -1, 1, 5, 3, 102.424278))
sketch4.addConstraint(Sketcher.Constraint("DistanceX", -1, 1, 8, 3, 85.36473))
sketch4.addConstraint(Sketcher.Constraint("DistanceY", -1, 1, 9, 3, 72.976972))
sketch4.addConstraint(Sketcher.Constraint("DistanceX", -1, 1, 12, 3, 101.789708))
sketch4.addConstraint(Sketcher.Constraint("DistanceY", -1, 1, 12, 3, 46.108359))
sketch4.addConstraint(Sketcher.Constraint("DistanceX", -1, 1, 13, 3, 110.131291))
sketch4.addConstraint(Sketcher.Constraint("DistanceY", -1, 1, 15, 3, 16.68987))
sketch4.addConstraint(Sketcher.Constraint("DistanceY", -1, 1, 17, 3, 0.720478))
sketch4.addConstraint(Sketcher.Constraint("DistanceX", -1, 1, 18, 3, 115.855151))
sketch4.addConstraint(Sketcher.Constraint("DistanceY", 18, 3, -1, 1, 10.553128))
sketch4.addConstraint(Sketcher.Constraint("DistanceX", -1, 1, 19, 3, 118.283572))
sketch4.addConstraint(Sketcher.Constraint("DistanceY", 19, 3, -1, 1, 22.304842))
sketch4.addConstraint(Sketcher.Constraint("DistanceY", 22, 3, -1, 1, 44.79198))
sketch4.addConstraint(Sketcher.Constraint("DistanceY", 24, 3, -1, 1, 68.48675))
sketch4.addConstraint(Sketcher.Constraint("DistanceX", -1, 1, 25, 3, 94.57078))
sketch4.addConstraint(Sketcher.Constraint("DistanceX", -1, 1, 26, 3, 79.331831))
sketch4.addConstraint(Sketcher.Constraint("DistanceY", 26, 3, -1, 1, 71.254812))
sketch4.addConstraint(Sketcher.Constraint("DistanceX", -1, 1, 29, 3, 62.57143))
sketch4.addConstraint(Sketcher.Constraint("DistanceX", -1, 1, 31, 3, 43.491291))
sketch4.addConstraint(Sketcher.Constraint("DistanceX", -1, 1, 32, 3, 35.215851))
sketch4.addConstraint(Sketcher.Constraint("DistanceY", 32, 3, -1, 1, 106.051729))
sketch4.addConstraint(Sketcher.Constraint("DistanceX", -1, 1, 33, 3, 25.764589))
sketch4.addConstraint(Sketcher.Constraint("DistanceX", -1, 1, 34, 3, 15.338469))
sketch4.addConstraint(Sketcher.Constraint("DistanceX", -1, 1, 36, 3, 0.130712))
sketch4.addConstraint(Sketcher.Constraint("DistanceX", 38, 3, -1, 1, 22.605478))
sketch4.addConstraint(Sketcher.Constraint("DistanceY", 38, 3, -1, 1, 114.117382))
sketch4.addConstraint(Sketcher.Constraint("DistanceY", 39, 3, -1, 1, 115.304111))
sketch4.addConstraint(Sketcher.Constraint("DistanceY", 40, 3, -1, 1, 114.690979))
sketch4.addConstraint(Sketcher.Constraint("DistanceX", 41, 3, -1, 1, 43.252469))
sketch4.addConstraint(Sketcher.Constraint("DistanceX", 42, 3, -1, 1, 55.24779))
sketch4.addConstraint(Sketcher.Constraint("DistanceY", 43, 3, -1, 1, 95.05694))
sketch4.addConstraint(Sketcher.Constraint("DistanceX", 47, 3, -1, 1, 89.978892))
sketch4.addConstraint(Sketcher.Constraint("DistanceY", 47, 3, -1, 1, 66.264051))
sketch4.addConstraint(Sketcher.Constraint("DistanceX", 48, 3, -1, 1, 99.931759))
sketch4.addConstraint(Sketcher.Constraint("DistanceY", 48, 3, -1, 1, 59.560289))
sketch4.addConstraint(Sketcher.Constraint("DistanceX", 50, 3, -1, 1, 116.644388))
sketch4.addConstraint(Sketcher.Constraint("DistanceY", 50, 3, -1, 1, 41.856262))
sketch4.addConstraint(Sketcher.Constraint("DistanceY", 52, 3, -1, 1, 23.937511))
sketch4.addConstraint(Sketcher.Constraint("DistanceX", 54, 3, -1, 1, 120.336229))
sketch4.addConstraint(Sketcher.Constraint("DistanceY", 54, 3, -1, 1, 2.77511))
sketch4.addConstraint(Sketcher.Constraint("DistanceY", -1, 1, 55, 3, 9.205949))
sketch4.addConstraint(Sketcher.Constraint("DistanceX", 58, 3, -1, 1, 111.129319))
sketch4.addConstraint(Sketcher.Constraint("DistanceX", 61, 3, -1, 1, 92.412949))
sketch4.addConstraint(Sketcher.Constraint("DistanceY", -1, 1, 63, 3, 76.635609))
sketch4.addConstraint(Sketcher.Constraint("DistanceX", 65, 3, -1, 1, 75.852769))
sketch4.addConstraint(Sketcher.Constraint("DistanceY", -1, 1, 65, 3, 98.001109))
sketch4.addConstraint(Sketcher.Constraint("DistanceY", -1, 1, 66, 3, 86.191738))
sketch4.addConstraint(Sketcher.Constraint("DistanceX", 70, 3, -1, 1, 29.43431))
sketch4.addConstraint(Sketcher.Constraint("DistanceY", -1, 1, 70, 3, 120.380569))
sketch4.addConstraint(Sketcher.Constraint("DistanceY", -1, 1, 72, 3, 111.056032))
sketch4.addConstraint(Sketcher.Constraint("DistanceX", -1, 1, 75, 3, 22.073608))
sketch4.addConstraint(Sketcher.Constraint("DistanceX", -1, 1, 77, 3, 81.670409))
sketch4.addConstraint(Sketcher.Constraint("DistanceY", 77, 3, -1, 1, 59.48489))
sketch4.addConstraint(Sketcher.Constraint("DistanceX", 79, 3, -1, 1, 92.350631))
sketch4.addConstraint(Sketcher.Constraint("DistanceX", 80, 3, -1, 1, 92.253319))
sketch4.addConstraint(Sketcher.Constraint("DistanceY", -1, 1, 80, 3, 41.20477))
sketch4.addConstraint(Sketcher.Constraint("DistanceY", -1, 1, 0, 3, 100.471094))
sketch4.addConstraint(Sketcher.Constraint("DistanceY", -1, 1, 1, 3, 104.330787))
sketch4.addConstraint(Sketcher.Constraint("DistanceY", -1, 1, 4, 3, 105.601786))
sketch4.addConstraint(Sketcher.Constraint("DistanceX", -1, 1, 6, 3, 62.572036))
sketch4.addConstraint(Sketcher.Constraint("DistanceX", -1, 1, 7, 3, 74.235566))
sketch4.addConstraint(Sketcher.Constraint("DistanceY", -1, 1, 7, 3, 83.523686))
sketch4.addConstraint(Sketcher.Constraint("DistanceY", -1, 1, 8, 3, 79.035735))
sketch4.addConstraint(Sketcher.Constraint("DistanceX", -1, 1, 9, 3, 95.722886))
sketch4.addConstraint(Sketcher.Constraint("DistanceX", -1, 1, 10, 3, 105.393022))
sketch4.addConstraint(Sketcher.Constraint("DistanceY", -1, 1, 10, 3, 65.193334))
sketch4.addConstraint(Sketcher.Constraint("DistanceX", -1, 1, 11, 3, 92.282237))
sketch4.addConstraint(Sketcher.Constraint("DistanceY", -1, 1, 11, 3, 53.430107))
sketch4.addConstraint(Sketcher.Constraint("DistanceY", -1, 1, 13, 3, 37.481773))
sketch4.addConstraint(Sketcher.Constraint("DistanceX", -1, 1, 14, 3, 117.129616))
sketch4.addConstraint(Sketcher.Constraint("DistanceY", -1, 1, 14, 3, 27.733776))
sketch4.addConstraint(Sketcher.Constraint("DistanceX", -1, 1, 15, 3, 122.797835))
sketch4.addConstraint(Sketcher.Constraint("DistanceY", -1, 1, 16, 3, 11.276265))
sketch4.addConstraint(Sketcher.Constraint("DistanceX", -1, 1, 17, 3, 111.743485))
sketch4.addConstraint(Sketcher.Constraint("DistanceX", -1, 1, 20, 3, 118.969786))
sketch4.addConstraint(Sketcher.Constraint("DistanceY", 20, 3, -1, 1, 34.699424))
sketch4.addConstraint(Sketcher.Constraint("DistanceX", -1, 1, 21, 3, 101.455177))
sketch4.addConstraint(Sketcher.Constraint("DistanceY", 21, 3, -1, 1, 32.827347))
sketch4.addConstraint(Sketcher.Constraint("DistanceX", -1, 1, 22, 3, 102.375798))
sketch4.addConstraint(Sketcher.Constraint("DistanceX", -1, 1, 23, 3, 101.546603))
sketch4.addConstraint(Sketcher.Constraint("DistanceY", 23, 3, -1, 1, 56.763298))
sketch4.addConstraint(Sketcher.Constraint("DistanceX", -1, 1, 24, 3, 98.985223))
sketch4.addConstraint(Sketcher.Constraint("DistanceY", 25, 3, -1, 1, 80.088873))
sketch4.addConstraint(Sketcher.Constraint("DistanceX", -1, 1, 27, 3, 75.306405))
sketch4.addConstraint(Sketcher.Constraint("DistanceX", -1, 1, 28, 3, 69.679725))
sketch4.addConstraint(Sketcher.Constraint("DistanceY", 28, 3, -1, 1, 93.158577))
sketch4.addConstraint(Sketcher.Constraint("DistanceY", 29, 3, -1, 1, 102.826677))
sketch4.addConstraint(Sketcher.Constraint("DistanceX", -1, 1, 30, 3, 53.819627))
sketch4.addConstraint(Sketcher.Constraint("DistanceY", 30, 3, -1, 1, 111.630227))
sketch4.addConstraint(Sketcher.Constraint("DistanceY", 31, 3, -1, 1, 97.361672))
sketch4.addConstraint(Sketcher.Constraint("DistanceY", 33, 3, -1, 1, 113.445892))
sketch4.addConstraint(Sketcher.Constraint("DistanceY", 34, 3, -1, 1, 119.386937))
sketch4.addConstraint(Sketcher.Constraint("DistanceX", -1, 1, 35, 3, 3.762572))
sketch4.addConstraint(Sketcher.Constraint("DistanceY", 36, 3, -1, 1, 106.633815))
sketch4.addConstraint(Sketcher.Constraint("DistanceX", 37, 3, -1, 1, 10.963843))
sketch4.addConstraint(Sketcher.Constraint("DistanceY", 37, 3, -1, 1, 111.206653))
sketch4.addConstraint(Sketcher.Constraint("DistanceX", 39, 3, -1, 1, 34.546654))
sketch4.addConstraint(Sketcher.Constraint("DistanceX", 40, 3, -1, 1, 46.945066))
sketch4.addConstraint(Sketcher.Constraint("DistanceY", 41, 3, -1, 1, 97.468003))
sketch4.addConstraint(Sketcher.Constraint("DistanceY", 42, 3, -1, 1, 97.132936))
sketch4.addConstraint(Sketcher.Constraint("DistanceX", 43, 3, -1, 1, 67.066853))
sketch4.addConstraint(Sketcher.Constraint("DistanceX", 44, 3, -1, 1, 78.458346))
sketch4.addConstraint(Sketcher.Constraint("DistanceY", 44, 3, -1, 1, 91.284157))
sketch4.addConstraint(Sketcher.Constraint("DistanceX", 45, 3, -1, 1, 89.535476))
sketch4.addConstraint(Sketcher.Constraint("DistanceY", 45, 3, -1, 1, 85.681145))
sketch4.addConstraint(Sketcher.Constraint("DistanceX", 46, 3, -1, 1, 79.156905))
sketch4.addConstraint(Sketcher.Constraint("DistanceY", 46, 3, -1, 1, 71.449087))
sketch4.addConstraint(Sketcher.Constraint("DistanceX", 49, 3, -1, 1, 108.803877))
sketch4.addConstraint(Sketcher.Constraint("DistanceY", 49, 3, -1, 1, 51.480343))
sketch4.addConstraint(Sketcher.Constraint("DistanceX", 51, 3, -1, 1, 101.374393))
sketch4.addConstraint(Sketcher.Constraint("DistanceY", 51, 3, -1, 1, 33.075975))
sketch4.addConstraint(Sketcher.Constraint("DistanceX", 52, 3, -1, 1, 109.151826))
sketch4.addConstraint(Sketcher.Constraint("DistanceX", 53, 3, -1, 1, 115.517557))
sketch4.addConstraint(Sketcher.Constraint("DistanceY", 53, 3, -1, 1, 13.765123))
sketch4.addConstraint(Sketcher.Constraint("DistanceX", 55, 3, -1, 1, 123.584426))
sketch4.addConstraint(Sketcher.Constraint("DistanceX", 56, 3, -1, 1, 106.063327))
sketch4.addConstraint(Sketcher.Constraint("DistanceY", -1, 1, 56, 3, 11.016273))
sketch4.addConstraint(Sketcher.Constraint("DistanceX", 57, 3, -1, 1, 109.451417))
sketch4.addConstraint(Sketcher.Constraint("DistanceY", -1, 1, 57, 3, 22.528043))
sketch4.addConstraint(Sketcher.Constraint("DistanceY", -1, 1, 58, 3, 34.410157))
sketch4.addConstraint(Sketcher.Constraint("DistanceX", 59, 3, -1, 1, 111.061355))
sketch4.addConstraint(Sketcher.Constraint("DistanceY", -1, 1, 59, 3, 46.409965))
sketch4.addConstraint(Sketcher.Constraint("DistanceX", 60, 3, -1, 1, 109.155595))
sketch4.addConstraint(Sketcher.Constraint("DistanceY", -1, 1, 60, 3, 58.676368))
sketch4.addConstraint(Sketcher.Constraint("DistanceY", -1, 1, 61, 3, 53.203708))
sketch4.addConstraint(Sketcher.Constraint("DistanceX", 62, 3, -1, 1, 90.825865))
sketch4.addConstraint(Sketcher.Constraint("DistanceY", -1, 1, 62, 3, 65.098293))
sketch4.addConstraint(Sketcher.Constraint("DistanceX", 63, 3, -1, 1, 87.525813))
sketch4.addConstraint(Sketcher.Constraint("DistanceX", 64, 3, -1, 1, 82.582963))
sketch4.addConstraint(Sketcher.Constraint("DistanceY", -1, 1, 64, 3, 87.570335))
sketch4.addConstraint(Sketcher.Constraint("DistanceX", 66, 3, -1, 1, 62.783532))
sketch4.addConstraint(Sketcher.Constraint("DistanceX", 67, 3, -1, 1, 56.495695))
sketch4.addConstraint(Sketcher.Constraint("DistanceY", -1, 1, 67, 3, 96.412457))
sketch4.addConstraint(Sketcher.Constraint("DistanceY", -1, 1, 68, 3, 105.610068))
sketch4.addConstraint(Sketcher.Constraint("DistanceX", 69, 3, -1, 1, 39.825226))
sketch4.addConstraint(Sketcher.Constraint("DistanceX", 71, 3, -1, 1, 22.298272))
sketch4.addConstraint(Sketcher.Constraint("DistanceY", -1, 1, 71, 3, 104.276434))
sketch4.addConstraint(Sketcher.Constraint("DistanceX", 72, 3, -1, 1, 12.396906))
sketch4.addConstraint(Sketcher.Constraint("DistanceX", 73, 3, -1, 1, 1.614844))
sketch4.addConstraint(Sketcher.Constraint("DistanceY", -1, 1, 73, 3, 116.323586))
sketch4.addConstraint(Sketcher.Constraint("DistanceX", -1, 1, 74, 3, 9.818654))
sketch4.addConstraint(Sketcher.Constraint("DistanceY", -1, 1, 74, 3, 119.967093))
sketch4.addConstraint(Sketcher.Constraint("DistanceY", -1, 1, 75, 3, 121.945134))
sketch4.addConstraint(Sketcher.Constraint("DistanceX", -1, 1, 76, 3, 81.811037))
sketch4.addConstraint(Sketcher.Constraint("DistanceY", -1, 1, 76, 3, 59.291333))
sketch4.addConstraint(Sketcher.Constraint("DistanceX", -1, 1, 78, 3, 10.442282))
sketch4.addConstraint(Sketcher.Constraint("DistanceY", 78, 3, -1, 1, 100.496103))
sketch4.addConstraint(Sketcher.Constraint("DistanceY", 79, 3, -1, 1, 40.986204))
pocket2 = doc.addObject("PartDesign::Pocket", "Pocket001")
body.addObject(pocket2)
pocket2.Profile = sketch4
pocket2.Type = "ThroughAll"

doc.recompute()
